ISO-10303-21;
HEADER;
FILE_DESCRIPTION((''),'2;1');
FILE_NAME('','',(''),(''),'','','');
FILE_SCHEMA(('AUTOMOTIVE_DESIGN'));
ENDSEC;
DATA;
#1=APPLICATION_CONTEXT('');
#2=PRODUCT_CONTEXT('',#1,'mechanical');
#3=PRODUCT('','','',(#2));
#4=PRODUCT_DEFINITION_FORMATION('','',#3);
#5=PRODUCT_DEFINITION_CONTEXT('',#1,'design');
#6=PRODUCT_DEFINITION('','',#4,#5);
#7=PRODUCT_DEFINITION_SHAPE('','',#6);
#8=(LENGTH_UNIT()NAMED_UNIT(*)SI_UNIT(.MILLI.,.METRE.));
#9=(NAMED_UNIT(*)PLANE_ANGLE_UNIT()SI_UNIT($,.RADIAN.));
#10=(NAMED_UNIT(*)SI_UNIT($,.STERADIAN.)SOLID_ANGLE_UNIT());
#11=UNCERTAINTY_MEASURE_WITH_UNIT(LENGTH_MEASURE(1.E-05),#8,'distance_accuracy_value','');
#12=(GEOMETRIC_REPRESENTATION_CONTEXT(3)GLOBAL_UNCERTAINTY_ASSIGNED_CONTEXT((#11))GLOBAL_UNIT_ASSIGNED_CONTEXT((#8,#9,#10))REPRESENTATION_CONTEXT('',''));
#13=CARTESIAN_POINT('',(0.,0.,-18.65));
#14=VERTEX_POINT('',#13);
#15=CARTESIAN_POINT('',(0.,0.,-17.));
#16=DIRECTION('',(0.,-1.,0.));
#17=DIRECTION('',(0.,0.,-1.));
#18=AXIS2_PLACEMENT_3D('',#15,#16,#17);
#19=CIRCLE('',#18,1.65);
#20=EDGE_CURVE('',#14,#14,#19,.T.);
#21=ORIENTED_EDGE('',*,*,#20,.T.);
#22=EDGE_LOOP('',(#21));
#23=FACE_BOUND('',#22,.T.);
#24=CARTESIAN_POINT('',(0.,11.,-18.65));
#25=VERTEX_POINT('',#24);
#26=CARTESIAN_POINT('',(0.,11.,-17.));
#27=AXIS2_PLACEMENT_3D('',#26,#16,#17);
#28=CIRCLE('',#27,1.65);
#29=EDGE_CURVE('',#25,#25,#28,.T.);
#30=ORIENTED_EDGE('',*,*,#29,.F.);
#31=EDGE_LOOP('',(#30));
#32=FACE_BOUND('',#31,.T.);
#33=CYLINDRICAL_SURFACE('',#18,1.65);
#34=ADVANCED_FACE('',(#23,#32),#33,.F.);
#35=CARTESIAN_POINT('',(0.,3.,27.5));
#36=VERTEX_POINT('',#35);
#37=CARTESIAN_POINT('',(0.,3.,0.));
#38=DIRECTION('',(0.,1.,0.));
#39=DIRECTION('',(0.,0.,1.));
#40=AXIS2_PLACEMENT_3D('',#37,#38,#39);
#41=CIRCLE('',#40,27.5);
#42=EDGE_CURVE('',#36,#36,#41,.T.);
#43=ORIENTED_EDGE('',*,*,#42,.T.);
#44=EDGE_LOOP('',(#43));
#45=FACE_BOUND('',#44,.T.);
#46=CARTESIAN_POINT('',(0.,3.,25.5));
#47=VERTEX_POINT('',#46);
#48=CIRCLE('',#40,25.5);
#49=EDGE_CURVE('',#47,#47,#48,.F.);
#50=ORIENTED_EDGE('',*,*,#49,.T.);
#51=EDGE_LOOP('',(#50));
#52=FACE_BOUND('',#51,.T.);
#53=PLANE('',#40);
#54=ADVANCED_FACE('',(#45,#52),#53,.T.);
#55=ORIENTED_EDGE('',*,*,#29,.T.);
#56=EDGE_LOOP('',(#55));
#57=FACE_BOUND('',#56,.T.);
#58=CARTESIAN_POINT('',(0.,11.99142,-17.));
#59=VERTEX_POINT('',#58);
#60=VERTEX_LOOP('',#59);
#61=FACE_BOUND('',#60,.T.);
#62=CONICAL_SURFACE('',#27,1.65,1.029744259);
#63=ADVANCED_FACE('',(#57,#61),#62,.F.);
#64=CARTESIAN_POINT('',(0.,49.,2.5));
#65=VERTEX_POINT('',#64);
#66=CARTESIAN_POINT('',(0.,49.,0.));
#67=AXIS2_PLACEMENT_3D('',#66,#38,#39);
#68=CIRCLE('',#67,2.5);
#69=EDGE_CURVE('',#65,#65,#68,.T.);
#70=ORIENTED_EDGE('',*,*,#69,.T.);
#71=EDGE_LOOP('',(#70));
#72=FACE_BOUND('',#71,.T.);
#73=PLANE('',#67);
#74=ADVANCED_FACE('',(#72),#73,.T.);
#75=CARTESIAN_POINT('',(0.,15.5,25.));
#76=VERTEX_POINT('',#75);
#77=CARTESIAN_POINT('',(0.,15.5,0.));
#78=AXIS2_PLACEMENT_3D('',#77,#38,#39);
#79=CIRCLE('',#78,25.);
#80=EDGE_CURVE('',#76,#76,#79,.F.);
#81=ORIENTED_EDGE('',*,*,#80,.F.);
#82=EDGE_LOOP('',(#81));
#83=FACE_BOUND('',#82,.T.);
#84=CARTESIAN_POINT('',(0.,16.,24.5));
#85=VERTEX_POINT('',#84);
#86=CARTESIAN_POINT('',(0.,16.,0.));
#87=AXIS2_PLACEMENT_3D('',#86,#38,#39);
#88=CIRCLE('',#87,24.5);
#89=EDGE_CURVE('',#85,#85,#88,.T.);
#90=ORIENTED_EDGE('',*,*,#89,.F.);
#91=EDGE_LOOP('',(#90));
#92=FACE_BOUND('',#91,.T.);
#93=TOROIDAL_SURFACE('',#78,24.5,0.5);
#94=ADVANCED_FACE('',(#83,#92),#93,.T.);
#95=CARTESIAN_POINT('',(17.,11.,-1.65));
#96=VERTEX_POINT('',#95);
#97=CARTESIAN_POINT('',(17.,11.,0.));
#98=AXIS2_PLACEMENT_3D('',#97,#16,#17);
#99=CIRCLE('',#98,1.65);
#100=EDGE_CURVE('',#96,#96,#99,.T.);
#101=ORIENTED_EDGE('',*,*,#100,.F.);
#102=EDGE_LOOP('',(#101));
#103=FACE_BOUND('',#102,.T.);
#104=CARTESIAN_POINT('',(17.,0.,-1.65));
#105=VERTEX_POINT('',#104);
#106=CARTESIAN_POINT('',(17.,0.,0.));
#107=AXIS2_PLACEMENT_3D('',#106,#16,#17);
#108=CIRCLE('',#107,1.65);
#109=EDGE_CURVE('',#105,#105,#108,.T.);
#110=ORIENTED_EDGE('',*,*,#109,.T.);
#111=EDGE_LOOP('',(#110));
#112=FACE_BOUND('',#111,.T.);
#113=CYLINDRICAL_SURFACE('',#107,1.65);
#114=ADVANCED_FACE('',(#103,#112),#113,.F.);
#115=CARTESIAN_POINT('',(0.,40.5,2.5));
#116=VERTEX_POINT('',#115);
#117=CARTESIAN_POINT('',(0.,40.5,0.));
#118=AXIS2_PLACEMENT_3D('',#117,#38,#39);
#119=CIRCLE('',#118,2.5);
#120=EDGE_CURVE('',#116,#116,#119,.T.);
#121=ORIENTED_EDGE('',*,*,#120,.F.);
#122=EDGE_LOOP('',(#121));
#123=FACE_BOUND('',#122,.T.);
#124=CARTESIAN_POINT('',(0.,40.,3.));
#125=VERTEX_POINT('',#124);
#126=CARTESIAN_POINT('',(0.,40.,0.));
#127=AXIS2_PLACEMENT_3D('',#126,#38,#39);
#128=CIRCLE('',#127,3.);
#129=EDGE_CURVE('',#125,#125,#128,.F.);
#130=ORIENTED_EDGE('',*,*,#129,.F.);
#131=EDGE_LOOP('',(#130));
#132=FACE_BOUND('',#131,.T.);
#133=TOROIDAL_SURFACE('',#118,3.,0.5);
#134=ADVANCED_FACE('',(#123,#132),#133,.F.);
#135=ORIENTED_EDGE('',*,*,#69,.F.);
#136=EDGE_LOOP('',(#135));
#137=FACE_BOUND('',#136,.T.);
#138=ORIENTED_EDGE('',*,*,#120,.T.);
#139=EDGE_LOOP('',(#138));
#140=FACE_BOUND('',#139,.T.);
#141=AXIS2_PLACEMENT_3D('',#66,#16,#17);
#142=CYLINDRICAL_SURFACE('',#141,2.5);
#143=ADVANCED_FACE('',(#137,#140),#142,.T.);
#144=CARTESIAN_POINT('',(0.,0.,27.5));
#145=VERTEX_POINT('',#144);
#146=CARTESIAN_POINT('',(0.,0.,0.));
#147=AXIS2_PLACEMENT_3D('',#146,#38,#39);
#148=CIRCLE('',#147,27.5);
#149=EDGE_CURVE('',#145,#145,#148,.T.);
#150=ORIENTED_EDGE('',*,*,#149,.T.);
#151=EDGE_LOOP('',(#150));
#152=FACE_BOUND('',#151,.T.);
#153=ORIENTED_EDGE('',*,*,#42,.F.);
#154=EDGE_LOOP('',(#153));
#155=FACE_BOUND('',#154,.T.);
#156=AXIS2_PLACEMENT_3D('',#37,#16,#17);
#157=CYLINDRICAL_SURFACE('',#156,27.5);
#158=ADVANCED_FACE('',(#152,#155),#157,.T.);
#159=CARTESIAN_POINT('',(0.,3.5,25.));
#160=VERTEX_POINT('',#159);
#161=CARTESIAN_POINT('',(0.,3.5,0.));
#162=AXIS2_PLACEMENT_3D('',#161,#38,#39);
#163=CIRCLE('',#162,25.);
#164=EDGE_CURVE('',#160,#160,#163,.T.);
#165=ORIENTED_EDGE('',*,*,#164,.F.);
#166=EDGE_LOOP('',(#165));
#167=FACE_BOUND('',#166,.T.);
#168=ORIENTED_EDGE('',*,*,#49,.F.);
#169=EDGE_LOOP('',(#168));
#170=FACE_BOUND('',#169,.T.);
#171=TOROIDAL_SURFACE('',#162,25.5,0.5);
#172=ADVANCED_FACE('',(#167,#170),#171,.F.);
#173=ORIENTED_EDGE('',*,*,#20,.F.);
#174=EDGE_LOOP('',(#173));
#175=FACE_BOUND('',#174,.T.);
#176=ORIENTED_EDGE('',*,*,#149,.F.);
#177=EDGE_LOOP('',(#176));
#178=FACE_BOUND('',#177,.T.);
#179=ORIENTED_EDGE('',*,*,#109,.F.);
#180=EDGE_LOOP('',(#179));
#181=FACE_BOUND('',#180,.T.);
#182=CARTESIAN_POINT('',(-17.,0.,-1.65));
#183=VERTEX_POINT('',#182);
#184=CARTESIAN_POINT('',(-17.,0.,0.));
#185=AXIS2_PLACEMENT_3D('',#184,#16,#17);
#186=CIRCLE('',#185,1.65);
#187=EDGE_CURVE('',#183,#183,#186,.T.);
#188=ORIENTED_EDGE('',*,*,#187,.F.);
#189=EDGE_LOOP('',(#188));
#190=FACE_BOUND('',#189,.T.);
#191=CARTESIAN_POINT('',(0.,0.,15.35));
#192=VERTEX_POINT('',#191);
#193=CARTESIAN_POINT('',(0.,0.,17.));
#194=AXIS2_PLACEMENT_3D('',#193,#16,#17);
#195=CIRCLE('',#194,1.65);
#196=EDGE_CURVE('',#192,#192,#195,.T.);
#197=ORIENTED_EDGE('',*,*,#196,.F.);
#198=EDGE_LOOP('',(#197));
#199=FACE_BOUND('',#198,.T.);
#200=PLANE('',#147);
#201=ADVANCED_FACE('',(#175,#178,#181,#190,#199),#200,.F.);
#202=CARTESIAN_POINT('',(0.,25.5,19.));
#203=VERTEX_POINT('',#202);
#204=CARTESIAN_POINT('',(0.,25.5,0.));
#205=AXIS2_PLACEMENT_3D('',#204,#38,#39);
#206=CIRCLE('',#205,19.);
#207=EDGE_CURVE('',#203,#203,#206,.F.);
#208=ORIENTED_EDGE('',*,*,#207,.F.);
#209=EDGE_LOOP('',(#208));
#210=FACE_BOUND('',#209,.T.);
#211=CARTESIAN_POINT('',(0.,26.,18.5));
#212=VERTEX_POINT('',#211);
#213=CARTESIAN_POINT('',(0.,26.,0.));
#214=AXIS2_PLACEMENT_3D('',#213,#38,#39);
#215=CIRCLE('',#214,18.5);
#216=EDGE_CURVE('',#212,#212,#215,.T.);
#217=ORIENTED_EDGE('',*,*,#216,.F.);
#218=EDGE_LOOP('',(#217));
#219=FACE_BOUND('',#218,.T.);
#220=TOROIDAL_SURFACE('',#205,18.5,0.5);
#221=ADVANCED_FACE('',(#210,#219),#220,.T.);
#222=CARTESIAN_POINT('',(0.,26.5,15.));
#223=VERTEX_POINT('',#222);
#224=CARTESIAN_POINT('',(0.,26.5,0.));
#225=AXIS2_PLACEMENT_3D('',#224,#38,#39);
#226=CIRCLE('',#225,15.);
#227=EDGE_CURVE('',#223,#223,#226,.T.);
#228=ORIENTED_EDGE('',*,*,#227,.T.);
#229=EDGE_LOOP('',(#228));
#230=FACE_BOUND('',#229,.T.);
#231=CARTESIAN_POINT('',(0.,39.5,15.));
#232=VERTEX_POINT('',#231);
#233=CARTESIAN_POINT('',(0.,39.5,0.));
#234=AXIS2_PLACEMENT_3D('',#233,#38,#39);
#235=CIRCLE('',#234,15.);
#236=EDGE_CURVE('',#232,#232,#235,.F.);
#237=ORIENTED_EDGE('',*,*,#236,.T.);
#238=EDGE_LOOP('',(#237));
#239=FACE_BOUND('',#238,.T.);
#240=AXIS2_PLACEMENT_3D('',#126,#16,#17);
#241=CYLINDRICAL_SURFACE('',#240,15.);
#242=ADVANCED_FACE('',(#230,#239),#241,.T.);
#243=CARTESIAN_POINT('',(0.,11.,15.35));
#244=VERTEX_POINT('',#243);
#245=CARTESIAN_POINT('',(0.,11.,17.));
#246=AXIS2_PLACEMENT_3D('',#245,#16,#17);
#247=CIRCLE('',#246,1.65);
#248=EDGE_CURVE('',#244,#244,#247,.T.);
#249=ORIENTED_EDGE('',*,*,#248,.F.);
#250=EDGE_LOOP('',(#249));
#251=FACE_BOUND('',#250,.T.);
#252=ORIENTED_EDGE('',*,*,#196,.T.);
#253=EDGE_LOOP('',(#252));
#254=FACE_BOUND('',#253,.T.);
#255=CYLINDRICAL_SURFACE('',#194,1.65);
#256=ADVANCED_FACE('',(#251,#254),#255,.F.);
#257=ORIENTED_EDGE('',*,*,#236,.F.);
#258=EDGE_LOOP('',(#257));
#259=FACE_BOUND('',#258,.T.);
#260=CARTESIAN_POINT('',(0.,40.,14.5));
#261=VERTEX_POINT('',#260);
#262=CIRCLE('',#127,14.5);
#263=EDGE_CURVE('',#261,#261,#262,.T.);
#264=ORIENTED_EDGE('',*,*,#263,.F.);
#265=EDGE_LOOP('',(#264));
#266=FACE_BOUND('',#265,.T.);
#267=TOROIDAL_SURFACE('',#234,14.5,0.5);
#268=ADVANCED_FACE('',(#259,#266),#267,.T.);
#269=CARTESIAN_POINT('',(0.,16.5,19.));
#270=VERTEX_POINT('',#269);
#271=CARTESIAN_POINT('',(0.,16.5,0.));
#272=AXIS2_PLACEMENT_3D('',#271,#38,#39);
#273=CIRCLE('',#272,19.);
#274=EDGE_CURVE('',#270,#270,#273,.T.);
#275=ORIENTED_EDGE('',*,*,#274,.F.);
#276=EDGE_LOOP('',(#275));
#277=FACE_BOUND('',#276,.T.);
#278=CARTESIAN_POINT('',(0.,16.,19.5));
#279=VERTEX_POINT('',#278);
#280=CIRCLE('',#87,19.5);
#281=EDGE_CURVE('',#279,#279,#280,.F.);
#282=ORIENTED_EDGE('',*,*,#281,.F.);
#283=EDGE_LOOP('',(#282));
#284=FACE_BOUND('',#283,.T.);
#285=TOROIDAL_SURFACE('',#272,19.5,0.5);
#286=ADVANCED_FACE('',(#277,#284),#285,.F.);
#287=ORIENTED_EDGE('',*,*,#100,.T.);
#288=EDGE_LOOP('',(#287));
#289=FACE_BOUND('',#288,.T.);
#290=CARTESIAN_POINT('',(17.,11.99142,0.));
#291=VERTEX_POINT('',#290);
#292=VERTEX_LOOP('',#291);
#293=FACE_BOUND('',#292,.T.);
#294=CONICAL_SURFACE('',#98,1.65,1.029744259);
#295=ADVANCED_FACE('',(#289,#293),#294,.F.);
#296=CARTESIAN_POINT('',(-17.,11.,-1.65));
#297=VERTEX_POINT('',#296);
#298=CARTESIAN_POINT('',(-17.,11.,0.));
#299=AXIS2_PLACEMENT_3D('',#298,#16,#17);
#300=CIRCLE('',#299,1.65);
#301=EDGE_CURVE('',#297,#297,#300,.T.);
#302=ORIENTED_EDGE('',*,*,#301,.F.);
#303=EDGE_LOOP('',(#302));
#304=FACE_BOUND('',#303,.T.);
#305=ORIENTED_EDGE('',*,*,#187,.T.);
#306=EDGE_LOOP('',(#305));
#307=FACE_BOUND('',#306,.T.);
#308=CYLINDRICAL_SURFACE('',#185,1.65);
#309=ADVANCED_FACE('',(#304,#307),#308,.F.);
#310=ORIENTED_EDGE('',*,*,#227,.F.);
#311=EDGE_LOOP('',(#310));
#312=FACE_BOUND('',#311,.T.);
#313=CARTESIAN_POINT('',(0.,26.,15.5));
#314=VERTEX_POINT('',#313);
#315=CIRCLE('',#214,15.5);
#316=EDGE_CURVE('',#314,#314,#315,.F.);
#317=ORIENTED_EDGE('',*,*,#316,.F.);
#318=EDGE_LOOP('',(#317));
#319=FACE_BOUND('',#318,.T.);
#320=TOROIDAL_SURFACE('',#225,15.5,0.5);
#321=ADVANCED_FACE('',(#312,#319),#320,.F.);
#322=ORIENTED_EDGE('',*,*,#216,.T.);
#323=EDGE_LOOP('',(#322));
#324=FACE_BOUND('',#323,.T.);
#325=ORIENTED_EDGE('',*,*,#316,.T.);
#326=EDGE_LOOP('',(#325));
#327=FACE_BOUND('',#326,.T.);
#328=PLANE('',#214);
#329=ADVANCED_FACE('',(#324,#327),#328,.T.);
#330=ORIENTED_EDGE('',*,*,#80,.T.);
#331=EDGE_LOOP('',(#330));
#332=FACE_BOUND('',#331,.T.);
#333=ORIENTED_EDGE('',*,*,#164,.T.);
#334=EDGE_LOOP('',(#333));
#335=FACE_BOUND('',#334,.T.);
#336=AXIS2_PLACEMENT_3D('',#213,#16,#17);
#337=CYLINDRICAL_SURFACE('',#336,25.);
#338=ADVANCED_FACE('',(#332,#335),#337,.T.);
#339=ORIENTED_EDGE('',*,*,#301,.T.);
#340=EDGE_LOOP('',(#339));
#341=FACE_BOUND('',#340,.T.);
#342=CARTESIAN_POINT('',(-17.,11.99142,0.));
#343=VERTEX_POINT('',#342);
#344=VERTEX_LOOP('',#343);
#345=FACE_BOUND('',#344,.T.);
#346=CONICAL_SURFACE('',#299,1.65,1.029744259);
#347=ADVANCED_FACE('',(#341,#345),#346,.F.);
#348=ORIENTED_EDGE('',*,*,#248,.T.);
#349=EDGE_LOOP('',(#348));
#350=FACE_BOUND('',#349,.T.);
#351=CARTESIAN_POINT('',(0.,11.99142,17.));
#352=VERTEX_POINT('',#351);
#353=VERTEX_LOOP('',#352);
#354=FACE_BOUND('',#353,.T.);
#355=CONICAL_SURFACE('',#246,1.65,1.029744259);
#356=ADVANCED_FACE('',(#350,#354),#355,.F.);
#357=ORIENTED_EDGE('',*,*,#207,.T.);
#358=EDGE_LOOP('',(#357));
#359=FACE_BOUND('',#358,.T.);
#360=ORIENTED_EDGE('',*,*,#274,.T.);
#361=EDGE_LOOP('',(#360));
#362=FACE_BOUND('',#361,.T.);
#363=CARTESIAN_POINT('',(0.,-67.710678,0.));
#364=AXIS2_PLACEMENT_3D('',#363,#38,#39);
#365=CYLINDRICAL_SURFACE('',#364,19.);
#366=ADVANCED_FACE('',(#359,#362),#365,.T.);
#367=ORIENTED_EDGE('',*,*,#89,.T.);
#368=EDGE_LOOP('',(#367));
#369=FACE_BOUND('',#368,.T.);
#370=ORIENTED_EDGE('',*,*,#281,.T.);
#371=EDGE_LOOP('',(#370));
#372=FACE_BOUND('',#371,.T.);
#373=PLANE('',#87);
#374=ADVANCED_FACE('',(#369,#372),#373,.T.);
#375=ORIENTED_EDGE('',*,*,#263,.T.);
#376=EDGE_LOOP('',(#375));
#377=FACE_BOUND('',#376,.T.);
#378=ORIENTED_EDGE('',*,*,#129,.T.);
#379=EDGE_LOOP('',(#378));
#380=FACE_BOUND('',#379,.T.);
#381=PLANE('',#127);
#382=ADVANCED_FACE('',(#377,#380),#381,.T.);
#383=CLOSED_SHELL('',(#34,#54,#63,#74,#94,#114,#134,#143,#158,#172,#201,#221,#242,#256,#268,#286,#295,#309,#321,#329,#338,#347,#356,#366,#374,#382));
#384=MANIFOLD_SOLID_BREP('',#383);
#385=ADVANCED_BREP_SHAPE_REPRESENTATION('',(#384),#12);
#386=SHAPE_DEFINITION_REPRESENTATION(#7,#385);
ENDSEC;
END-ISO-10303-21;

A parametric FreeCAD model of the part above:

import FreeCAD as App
import Part
import Sketcher

V = App.Vector


def edges_at(feature, points):
    """Names of the edges that pass closest to the given points."""
    edges = feature.Shape.Edges
    near = lambda p: min(range(len(edges)), key=lambda i: edges[i].distToShape(Part.Vertex(*p))[0])
    return sorted({f"Edge{near(p) + 1}" for p in points})

doc = App.newDocument("Part")
body = doc.addObject("PartDesign::Body", "Body")

# Sketch on XZ plane
sketch1 = body.newObject("Sketcher::SketchObject", "Sketch")
sketch1.AttachmentSupport = (doc.getObject("XZ_Plane"), [""])
sketch1.MapMode = "FlatFace"
sketch1.addGeometry(Part.Circle(V(0, 0, 0), V(0, 0, 1), 28), False)
sketch1.addConstraint(Sketcher.Constraint("Coincident", 0, 3, -1, 1))
sketch1.addConstraint(Sketcher.Constraint("Diameter", 0, 55.0))
pad1 = body.newObject("PartDesign::Pad", "Pad")
pad1.Profile = sketch1
pad1.Length = 3
pad1.Reversed = True

# Sketch on XZ plane
sketch2 = body.newObject("Sketcher::SketchObject", "Sketch001")
sketch2.AttachmentSupport = (doc.getObject("XZ_Plane"), [""])
sketch2.MapMode = "FlatFace"
sketch2.AttachmentOffset = App.Placement(V(0, 0, -3), App.Rotation())
sketch2.addGeometry(Part.Circle(V(0, 0, 0), V(0, 0, 1), 25), False)
sketch2.addConstraint(Sketcher.Constraint("Coincident", 0, 3, -1, 1))
sketch2.addConstraint(Sketcher.Constraint("Diameter", 0, 50.0))
pad2 = body.newObject("PartDesign::Pad", "Pad001")
pad2.Profile = sketch2
pad2.Length = 23
pad2.Reversed = True

# Sketch on XZ plane
sketch3 = body.newObject("Sketcher::SketchObject", "Sketch002")
sketch3.AttachmentSupport = (doc.getObject("XZ_Plane"), [""])
sketch3.MapMode = "FlatFace"
sketch3.AttachmentOffset = App.Placement(V(0, 0, -26), App.Rotation())
sketch3.addGeometry(Part.Circle(V(0, 0, 0), V(0, 0, 1), 15), False)
sketch3.addConstraint(Sketcher.Constraint("Coincident", 0, 3, -1, 1))
sketch3.addConstraint(Sketcher.Constraint("Diameter", 0, 30.0))
pad3 = body.newObject("PartDesign::Pad", "Pad002")
pad3.Profile = sketch3
pad3.Length = 14
pad3.Reversed = True

# Sketch on XZ plane
sketch4 = body.newObject("Sketcher::SketchObject", "Sketch003")
sketch4.AttachmentSupport = (doc.getObject("XZ_Plane"), [""])
sketch4.MapMode = "FlatFace"
sketch4.AttachmentOffset = App.Placement(V(0, 0, -40), App.Rotation())
sketch4.addGeometry(Part.Circle(V(0, 0, 0), V(0, 0, 1), 2.5), False)
sketch4.addConstraint(Sketcher.Constraint("Coincident", 0, 3, -1, 1))
sketch4.addConstraint(Sketcher.Constraint("Diameter", 0, 5.0))
pad4 = body.newObject("PartDesign::Pad", "Pad003")
pad4.Profile = sketch4
pad4.Length = 9
pad4.Reversed = True

# Sketch on XZ plane
sketch5 = body.newObject("Sketcher::SketchObject", "Sketch004")
sketch5.AttachmentSupport = (doc.getObject("XZ_Plane"), [""])
sketch5.MapMode = "FlatFace"
sketch5.addGeometry(Part.Circle(V(0, 17, 0), V(0, 0, 1), 1.6), False)
sketch5.addGeometry(Part.Circle(V(17, 0, 0), V(0, 0, 1), 1.6), False)
sketch5.addGeometry(Part.Circle(V(0, -17, 0), V(0, 0, 1), 1.6), False)
sketch5.addGeometry(Part.Circle(V(-17, 0, 0), V(0, 0, 1), 1.6), False)
sketch5.addConstraint(Sketcher.Constraint("Equal", 0, 1))
sketch5.addConstraint(Sketcher.Constraint("Equal", 1, 2))
sketch5.addConstraint(Sketcher.Constraint("Equal", 2, 3))
sketch5.addConstraint(Sketcher.Constraint("Symmetric", 0, 3, 2, 3, -1, 1))
sketch5.addConstraint(Sketcher.Constraint("Symmetric", 1, 3, 3, 3, -1, 1))
sketch5.addConstraint(Sketcher.Constraint("PointOnObject", 0, 3, -2))
sketch5.addConstraint(Sketcher.Constraint("PointOnObject", 1, 3, -1))
sketch5.addConstraint(Sketcher.Constraint("Diameter", 0, 3.3))
sketch5.addConstraint(Sketcher.Constraint("DistanceY", -1, 1, 0, 3, 17.0))
sketch5.addConstraint(Sketcher.Constraint("DistanceX", -1, 1, 1, 3, 17.0))
doc.recompute()
hole = body.newObject("PartDesign::Hole", "Hole")
hole.Profile = sketch5
hole.ThreadType = "None"
hole.Diameter = 3.3
hole.DepthType = "Dimension"
hole.Depth = 11
hole.DrillPoint = "Angled"
hole.DrillPointAngle = 118

# Sketch on XZ plane
sketch6 = body.newObject("Sketcher::SketchObject", "Sketch005")
sketch6.AttachmentSupport = (doc.getObject("XZ_Plane"), [""])
sketch6.MapMode = "FlatFace"
sketch6.AttachmentOffset = App.Placement(V(0, 0, -26), App.Rotation())
sketch6.addGeometry(Part.Circle(V(0, 0, 0), V(0, 0, 1), 25), False)
sketch6.addGeometry(Part.Circle(V(0, 0, 0), V(0, 0, 1), 19), False)
sketch6.addConstraint(Sketcher.Constraint("Coincident", 0, 3, -1, 1))
sketch6.addConstraint(Sketcher.Constraint("Coincident", 1, 3, -1, 1))
sketch6.addConstraint(Sketcher.Constraint("Diameter", 0, 50.0))
sketch6.addConstraint(Sketcher.Constraint("Diameter", 1, 38.0))
pocket1 = body.newObject("PartDesign::Pocket", "Pocket")
pocket1.Profile = sketch6
pocket1.Length = 10
pocket1.Reversed = True
doc.recompute()

fillet = body.newObject("PartDesign::Fillet", "Fillet")
fillet.Base = (pocket1, edges_at(pocket1, [
    (-15, 26, 0),
    (-15, 40, 0),
    (-2.5, 40, 0),
    (-19, 16, 0),
    (-19, 26, 0),
    (-25, 16, 0),
    (-25, 3, 0),
]))
fillet.Radius = 0.5

doc.recompute()
